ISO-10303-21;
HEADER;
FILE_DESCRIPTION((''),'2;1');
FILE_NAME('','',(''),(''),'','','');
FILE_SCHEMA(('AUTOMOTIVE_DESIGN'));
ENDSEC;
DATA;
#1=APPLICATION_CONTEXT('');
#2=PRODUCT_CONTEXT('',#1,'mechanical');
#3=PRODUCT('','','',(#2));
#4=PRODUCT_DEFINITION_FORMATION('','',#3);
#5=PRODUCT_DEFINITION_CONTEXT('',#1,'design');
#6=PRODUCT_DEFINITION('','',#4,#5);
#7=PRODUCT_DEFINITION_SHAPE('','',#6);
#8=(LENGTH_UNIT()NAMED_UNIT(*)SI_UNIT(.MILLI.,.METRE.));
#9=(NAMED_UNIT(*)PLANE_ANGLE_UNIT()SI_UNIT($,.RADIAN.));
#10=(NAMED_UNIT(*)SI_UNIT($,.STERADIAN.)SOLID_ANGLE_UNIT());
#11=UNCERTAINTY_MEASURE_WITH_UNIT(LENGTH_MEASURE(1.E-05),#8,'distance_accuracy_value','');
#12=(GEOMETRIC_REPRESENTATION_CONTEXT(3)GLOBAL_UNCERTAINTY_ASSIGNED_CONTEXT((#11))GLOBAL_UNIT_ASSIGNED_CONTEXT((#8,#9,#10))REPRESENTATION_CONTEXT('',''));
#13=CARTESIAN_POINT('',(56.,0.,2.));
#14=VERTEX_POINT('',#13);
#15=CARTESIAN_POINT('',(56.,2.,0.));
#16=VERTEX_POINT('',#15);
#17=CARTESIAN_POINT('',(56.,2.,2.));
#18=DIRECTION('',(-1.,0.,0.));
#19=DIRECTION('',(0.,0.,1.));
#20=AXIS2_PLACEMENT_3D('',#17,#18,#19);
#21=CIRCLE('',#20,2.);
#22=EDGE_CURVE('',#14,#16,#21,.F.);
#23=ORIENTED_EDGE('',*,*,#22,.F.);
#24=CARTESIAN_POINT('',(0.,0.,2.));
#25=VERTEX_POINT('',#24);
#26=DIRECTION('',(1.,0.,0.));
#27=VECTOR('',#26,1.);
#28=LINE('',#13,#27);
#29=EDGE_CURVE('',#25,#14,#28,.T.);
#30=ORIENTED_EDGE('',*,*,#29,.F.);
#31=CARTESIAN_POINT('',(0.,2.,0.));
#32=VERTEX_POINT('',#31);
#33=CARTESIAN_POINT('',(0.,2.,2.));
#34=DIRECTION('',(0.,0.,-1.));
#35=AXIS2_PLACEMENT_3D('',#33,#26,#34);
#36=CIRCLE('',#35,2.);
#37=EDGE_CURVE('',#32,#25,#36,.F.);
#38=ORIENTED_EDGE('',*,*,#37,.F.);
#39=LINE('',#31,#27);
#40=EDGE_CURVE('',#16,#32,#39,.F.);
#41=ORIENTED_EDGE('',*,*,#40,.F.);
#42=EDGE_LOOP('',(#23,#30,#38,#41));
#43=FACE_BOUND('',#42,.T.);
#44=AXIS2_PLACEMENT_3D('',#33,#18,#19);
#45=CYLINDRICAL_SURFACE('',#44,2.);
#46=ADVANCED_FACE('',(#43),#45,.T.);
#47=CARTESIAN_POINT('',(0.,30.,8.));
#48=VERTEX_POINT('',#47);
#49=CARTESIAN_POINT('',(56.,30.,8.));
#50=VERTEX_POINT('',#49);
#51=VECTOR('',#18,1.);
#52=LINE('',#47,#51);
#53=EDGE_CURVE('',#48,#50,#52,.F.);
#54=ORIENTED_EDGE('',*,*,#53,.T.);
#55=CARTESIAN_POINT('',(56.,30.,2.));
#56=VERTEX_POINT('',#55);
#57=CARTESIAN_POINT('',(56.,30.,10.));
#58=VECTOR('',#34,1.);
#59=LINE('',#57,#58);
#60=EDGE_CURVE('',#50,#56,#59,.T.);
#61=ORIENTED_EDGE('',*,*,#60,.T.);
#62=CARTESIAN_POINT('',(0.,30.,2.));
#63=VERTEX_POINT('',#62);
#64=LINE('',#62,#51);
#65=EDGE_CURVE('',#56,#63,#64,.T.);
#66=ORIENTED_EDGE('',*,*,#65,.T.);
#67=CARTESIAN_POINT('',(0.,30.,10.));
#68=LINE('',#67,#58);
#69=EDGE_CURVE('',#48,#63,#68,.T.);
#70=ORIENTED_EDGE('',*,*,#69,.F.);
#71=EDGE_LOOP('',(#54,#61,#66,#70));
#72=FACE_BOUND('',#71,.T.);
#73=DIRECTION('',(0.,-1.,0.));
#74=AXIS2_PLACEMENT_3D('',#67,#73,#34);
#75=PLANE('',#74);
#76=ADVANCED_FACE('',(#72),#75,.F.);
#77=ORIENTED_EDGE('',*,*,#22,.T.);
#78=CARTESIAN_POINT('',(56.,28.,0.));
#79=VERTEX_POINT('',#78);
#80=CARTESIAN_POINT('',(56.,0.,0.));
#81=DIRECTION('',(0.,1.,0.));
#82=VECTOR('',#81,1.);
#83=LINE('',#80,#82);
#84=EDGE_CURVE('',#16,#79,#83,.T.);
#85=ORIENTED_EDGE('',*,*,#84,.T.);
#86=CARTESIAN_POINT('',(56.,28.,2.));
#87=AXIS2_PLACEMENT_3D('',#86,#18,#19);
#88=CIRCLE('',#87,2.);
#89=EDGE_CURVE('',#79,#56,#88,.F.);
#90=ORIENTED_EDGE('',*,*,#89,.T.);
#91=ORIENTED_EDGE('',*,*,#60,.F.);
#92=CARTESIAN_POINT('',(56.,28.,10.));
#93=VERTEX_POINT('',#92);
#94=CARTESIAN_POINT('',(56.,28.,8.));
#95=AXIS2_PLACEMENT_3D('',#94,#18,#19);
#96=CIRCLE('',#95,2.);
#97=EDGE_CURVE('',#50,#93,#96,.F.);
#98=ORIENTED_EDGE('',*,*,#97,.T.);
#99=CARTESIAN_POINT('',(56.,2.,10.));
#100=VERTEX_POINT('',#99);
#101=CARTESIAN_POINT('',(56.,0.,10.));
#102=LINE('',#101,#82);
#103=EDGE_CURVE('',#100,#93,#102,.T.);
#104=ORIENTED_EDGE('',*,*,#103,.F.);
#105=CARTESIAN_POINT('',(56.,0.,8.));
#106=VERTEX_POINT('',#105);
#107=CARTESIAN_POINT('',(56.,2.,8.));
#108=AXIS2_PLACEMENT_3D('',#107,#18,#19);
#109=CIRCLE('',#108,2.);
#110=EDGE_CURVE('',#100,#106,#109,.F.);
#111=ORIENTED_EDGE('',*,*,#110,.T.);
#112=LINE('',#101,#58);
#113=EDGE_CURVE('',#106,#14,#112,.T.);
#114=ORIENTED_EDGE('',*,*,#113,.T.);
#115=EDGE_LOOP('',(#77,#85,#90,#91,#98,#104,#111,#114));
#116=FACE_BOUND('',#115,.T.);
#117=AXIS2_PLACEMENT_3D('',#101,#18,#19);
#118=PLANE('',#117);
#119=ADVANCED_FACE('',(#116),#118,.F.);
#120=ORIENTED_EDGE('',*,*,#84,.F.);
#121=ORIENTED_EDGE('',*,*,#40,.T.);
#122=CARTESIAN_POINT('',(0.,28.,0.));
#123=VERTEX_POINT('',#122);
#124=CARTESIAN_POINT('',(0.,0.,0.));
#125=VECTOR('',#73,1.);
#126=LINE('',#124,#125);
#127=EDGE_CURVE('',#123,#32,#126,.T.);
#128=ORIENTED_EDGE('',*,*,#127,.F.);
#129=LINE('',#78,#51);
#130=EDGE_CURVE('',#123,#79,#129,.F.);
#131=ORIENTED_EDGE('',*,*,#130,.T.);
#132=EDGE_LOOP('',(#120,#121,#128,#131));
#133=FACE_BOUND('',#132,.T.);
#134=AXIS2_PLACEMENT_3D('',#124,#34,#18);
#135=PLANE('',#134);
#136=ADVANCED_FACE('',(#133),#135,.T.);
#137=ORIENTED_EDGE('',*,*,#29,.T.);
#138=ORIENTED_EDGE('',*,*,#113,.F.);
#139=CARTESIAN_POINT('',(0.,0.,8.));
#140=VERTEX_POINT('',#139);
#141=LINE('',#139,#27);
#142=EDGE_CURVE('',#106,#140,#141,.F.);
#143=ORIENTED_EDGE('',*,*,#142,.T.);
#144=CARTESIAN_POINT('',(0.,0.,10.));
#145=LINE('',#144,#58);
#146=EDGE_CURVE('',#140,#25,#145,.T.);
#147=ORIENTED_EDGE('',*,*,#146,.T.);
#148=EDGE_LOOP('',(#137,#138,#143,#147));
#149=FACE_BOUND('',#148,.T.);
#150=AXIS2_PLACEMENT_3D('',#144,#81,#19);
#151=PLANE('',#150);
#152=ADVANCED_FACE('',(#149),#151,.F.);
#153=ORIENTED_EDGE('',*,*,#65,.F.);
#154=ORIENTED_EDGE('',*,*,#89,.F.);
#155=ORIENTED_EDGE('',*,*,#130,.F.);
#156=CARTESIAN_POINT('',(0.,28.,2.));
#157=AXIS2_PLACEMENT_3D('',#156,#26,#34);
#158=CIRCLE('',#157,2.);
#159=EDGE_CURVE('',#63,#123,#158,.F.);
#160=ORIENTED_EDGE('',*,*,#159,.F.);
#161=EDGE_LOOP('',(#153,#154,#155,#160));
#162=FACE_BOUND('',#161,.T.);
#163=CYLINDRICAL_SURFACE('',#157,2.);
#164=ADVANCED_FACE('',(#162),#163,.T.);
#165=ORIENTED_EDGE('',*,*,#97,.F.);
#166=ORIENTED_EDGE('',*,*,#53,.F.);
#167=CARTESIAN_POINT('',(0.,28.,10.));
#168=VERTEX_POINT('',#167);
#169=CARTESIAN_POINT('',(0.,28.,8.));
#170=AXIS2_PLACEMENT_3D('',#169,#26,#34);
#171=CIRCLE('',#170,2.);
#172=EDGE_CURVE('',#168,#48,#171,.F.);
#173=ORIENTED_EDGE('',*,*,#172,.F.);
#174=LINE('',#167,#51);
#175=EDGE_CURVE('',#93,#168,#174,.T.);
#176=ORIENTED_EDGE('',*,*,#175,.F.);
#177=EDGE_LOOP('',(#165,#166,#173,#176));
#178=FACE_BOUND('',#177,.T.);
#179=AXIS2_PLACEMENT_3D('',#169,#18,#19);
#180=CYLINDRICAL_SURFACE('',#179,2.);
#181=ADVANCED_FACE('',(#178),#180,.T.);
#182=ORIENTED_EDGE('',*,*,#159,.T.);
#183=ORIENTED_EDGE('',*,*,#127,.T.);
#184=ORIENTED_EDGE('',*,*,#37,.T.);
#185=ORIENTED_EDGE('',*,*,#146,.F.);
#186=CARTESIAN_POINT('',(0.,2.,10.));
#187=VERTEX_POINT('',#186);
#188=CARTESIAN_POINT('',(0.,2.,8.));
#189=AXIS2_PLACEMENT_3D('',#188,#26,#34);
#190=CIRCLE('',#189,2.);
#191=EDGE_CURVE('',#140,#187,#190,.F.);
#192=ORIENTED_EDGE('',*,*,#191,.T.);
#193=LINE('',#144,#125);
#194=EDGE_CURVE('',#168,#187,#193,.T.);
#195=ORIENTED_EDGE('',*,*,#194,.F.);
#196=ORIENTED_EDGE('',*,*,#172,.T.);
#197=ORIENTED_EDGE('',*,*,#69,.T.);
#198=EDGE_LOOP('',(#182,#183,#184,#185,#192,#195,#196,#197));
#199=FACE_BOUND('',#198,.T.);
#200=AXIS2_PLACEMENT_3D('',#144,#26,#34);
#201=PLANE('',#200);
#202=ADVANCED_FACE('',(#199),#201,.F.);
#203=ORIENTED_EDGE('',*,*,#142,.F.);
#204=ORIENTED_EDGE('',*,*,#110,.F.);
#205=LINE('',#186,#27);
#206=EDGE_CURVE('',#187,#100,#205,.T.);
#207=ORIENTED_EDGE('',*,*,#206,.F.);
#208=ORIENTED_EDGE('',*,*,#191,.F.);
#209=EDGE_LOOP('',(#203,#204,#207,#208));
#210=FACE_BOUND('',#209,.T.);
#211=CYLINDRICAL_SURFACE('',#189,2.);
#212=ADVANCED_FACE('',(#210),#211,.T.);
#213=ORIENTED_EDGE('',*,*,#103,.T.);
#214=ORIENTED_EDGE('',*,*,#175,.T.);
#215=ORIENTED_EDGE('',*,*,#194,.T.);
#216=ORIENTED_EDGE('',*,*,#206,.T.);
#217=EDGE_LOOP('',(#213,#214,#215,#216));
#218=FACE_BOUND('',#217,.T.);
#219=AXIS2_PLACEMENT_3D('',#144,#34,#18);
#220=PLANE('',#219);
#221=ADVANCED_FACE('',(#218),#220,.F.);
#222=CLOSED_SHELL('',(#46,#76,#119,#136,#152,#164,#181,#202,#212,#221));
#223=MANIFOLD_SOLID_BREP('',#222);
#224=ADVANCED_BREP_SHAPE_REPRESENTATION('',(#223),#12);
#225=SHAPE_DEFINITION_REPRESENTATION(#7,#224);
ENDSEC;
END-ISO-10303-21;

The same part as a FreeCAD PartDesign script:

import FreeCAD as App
import Part
import Sketcher

V = App.Vector


def edges_at(feature, points):
    """Names of the edges that pass closest to the given points."""
    edges = feature.Shape.Edges
    near = lambda p: min(range(len(edges)), key=lambda i: edges[i].distToShape(Part.Vertex(*p))[0])
    return sorted({f"Edge{near(p) + 1}" for p in points})

doc = App.newDocument("Part")
params = doc.addObject("Spreadsheet::Sheet", "Params")
for row, (alias, value) in enumerate([
    ("sketch1_width", "56 mm"),
    ("sketch1_height", "30 mm"),
    ("pad1_length", "10 mm"),
    ("fillet_radius", "2 mm"),
], start=1):
    params.set(f"A{row}", alias)
    params.set(f"B{row}", "=" + value)
    params.setAlias(f"B{row}", alias)

body = doc.addObject("PartDesign::Body", "Body")

# Sketch on XY plane
sketch1 = body.newObject("Sketcher::SketchObject", "Sketch")
sketch1.AttachmentSupport = (doc.getObject("XY_Plane"), [""])
sketch1.MapMode = "FlatFace"
sketch1.addGeometry(Part.LineSegment(V(0, 30, 0), V(0, 0, 0)), False)
sketch1.addGeometry(Part.LineSegment(V(0, 0, 0), V(56, 0, 0)), False)
sketch1.addGeometry(Part.LineSegment(V(56, 0, 0), V(56, 30, 0)), False)
sketch1.addGeometry(Part.LineSegment(V(56, 30, 0), V(0, 30, 0)), False)
sketch1.addConstraint(Sketcher.Constraint("Coincident", 0, 2, 1, 1))
sketch1.addConstraint(Sketcher.Constraint("Coincident", 1, 2, 2, 1))
sketch1.addConstraint(Sketcher.Constraint("Coincident", 2, 2, 3, 1))
sketch1.addConstraint(Sketcher.Constraint("Coincident", 3, 2, 0, 1))
sketch1.addConstraint(Sketcher.Constraint("Vertical", 0))
sketch1.addConstraint(Sketcher.Constraint("Horizontal", 1))
sketch1.addConstraint(Sketcher.Constraint("Vertical", 2))
sketch1.addConstraint(Sketcher.Constraint("Horizontal", 3))
sketch1.addConstraint(Sketcher.Constraint("Coincident", 0, 2, -1, 1))
sketch1.addConstraint(Sketcher.Constraint("DistanceX", 1, 1, 1, 2, 56.0))
sketch1.addConstraint(Sketcher.Constraint("DistanceY", 0, 2, 0, 1, 30.0))
sketch1.setExpression("Constraints[9]", "Params.sketch1_width")
sketch1.setExpression("Constraints[10]", "Params.sketch1_height")
pad1 = body.newObject("PartDesign::Pad", "Pad")
pad1.Profile = sketch1
pad1.setExpression("Length", "Params.pad1_length")
doc.recompute()

fillet = body.newObject("PartDesign::Fillet", "Fillet")
fillet.Base = (pad1, edges_at(pad1, [
    (28, 30, 10),
    (28, 30, 0),
    (28, 0, 0),
    (28, 0, 10),
]))
fillet.setExpression("Radius", "Params.fillet_radius")

doc.recompute()
